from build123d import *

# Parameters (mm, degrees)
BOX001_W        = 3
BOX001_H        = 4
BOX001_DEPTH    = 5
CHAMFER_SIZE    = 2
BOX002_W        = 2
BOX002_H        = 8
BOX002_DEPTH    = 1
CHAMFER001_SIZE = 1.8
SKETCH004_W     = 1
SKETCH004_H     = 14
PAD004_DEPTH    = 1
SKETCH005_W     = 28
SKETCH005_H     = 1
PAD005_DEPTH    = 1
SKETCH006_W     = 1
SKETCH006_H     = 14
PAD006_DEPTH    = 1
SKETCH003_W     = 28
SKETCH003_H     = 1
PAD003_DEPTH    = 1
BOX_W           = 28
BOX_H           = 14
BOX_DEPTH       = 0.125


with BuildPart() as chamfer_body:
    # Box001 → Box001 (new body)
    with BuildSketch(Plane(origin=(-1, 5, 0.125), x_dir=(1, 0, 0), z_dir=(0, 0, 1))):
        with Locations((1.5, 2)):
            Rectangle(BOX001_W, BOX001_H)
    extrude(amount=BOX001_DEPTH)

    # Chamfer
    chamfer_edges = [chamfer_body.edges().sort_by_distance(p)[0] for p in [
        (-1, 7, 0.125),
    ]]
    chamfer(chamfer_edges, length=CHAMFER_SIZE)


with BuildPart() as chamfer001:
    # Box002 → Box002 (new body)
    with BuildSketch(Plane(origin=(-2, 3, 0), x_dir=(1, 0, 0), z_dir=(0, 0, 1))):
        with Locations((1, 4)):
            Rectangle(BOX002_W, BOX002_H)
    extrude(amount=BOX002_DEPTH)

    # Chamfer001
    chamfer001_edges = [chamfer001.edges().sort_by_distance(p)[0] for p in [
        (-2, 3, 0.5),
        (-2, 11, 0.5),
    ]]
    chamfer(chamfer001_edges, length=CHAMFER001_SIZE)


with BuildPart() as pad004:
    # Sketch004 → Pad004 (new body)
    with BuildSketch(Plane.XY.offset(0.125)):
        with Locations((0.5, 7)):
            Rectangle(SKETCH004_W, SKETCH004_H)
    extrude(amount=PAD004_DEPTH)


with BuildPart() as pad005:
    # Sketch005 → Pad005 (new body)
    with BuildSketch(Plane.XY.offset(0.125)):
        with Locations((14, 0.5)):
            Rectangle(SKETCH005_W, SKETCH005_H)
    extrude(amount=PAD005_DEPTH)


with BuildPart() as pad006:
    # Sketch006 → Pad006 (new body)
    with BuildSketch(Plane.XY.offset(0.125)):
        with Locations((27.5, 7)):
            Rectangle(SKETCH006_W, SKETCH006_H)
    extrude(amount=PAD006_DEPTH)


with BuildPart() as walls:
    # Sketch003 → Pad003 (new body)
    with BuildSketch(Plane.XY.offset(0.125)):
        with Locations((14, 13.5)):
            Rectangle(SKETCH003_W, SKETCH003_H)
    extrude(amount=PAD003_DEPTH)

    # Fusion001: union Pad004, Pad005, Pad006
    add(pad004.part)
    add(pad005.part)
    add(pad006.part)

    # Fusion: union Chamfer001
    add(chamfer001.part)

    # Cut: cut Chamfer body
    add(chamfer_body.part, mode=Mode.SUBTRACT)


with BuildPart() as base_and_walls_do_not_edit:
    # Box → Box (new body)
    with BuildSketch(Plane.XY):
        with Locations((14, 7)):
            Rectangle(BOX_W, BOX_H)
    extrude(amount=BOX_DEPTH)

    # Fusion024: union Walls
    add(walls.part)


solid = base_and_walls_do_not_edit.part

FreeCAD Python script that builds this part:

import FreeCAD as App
import Part
import Sketcher

V = App.Vector
Q = App.Units.Quantity


def edges_at(feature, points):
    """Names of the edges that pass closest to the given points."""
    edges = feature.Shape.Edges
    near = lambda p: min(range(len(edges)), key=lambda i: edges[i].distToShape(Part.Vertex(*p))[0])
    return sorted({f"Edge{near(p) + 1}" for p in points})


def add_polygon(sketch, points):
    """Adds a closed chain of lines whose ends are joined by coincident constraints."""
    first, n = sketch.GeometryCount, len(points)
    for a, b in zip(points, points[1:] + points[:1]):
        sketch.addGeometry(Part.LineSegment(App.Vector(*a, 0), App.Vector(*b, 0)), False)
    for i in range(n):
        sketch.addConstraint(Sketcher.Constraint("Coincident", first + i, 2, first + (i + 1) % n, 1))

doc = App.newDocument("Part")
body = doc.addObject("PartDesign::Body", "Body")

sketch1 = body.newObject("Sketcher::SketchObject", "Sketch")
sketch1.AttachmentSupport = (doc.getObject("XY_Plane"), [""])
sketch1.MapMode = "FlatFace"
sketch1.AttachmentOffset = App.Placement(V(0, 0, 0.125), App.Rotation())
add_polygon(sketch1, [(-1, 9), (-1, 5), (2, 5), (2, 9)])
sketch1.addConstraint([
    Sketcher.Constraint("Vertical", 0),
    Sketcher.Constraint("Horizontal", 1),
    Sketcher.Constraint("Vertical", 2),
    Sketcher.Constraint("Horizontal", 3),
    Sketcher.Constraint("DistanceX", 1, 1, 1, 2, Q("3 mm")),
    Sketcher.Constraint("DistanceY", 0, 2, 0, 1, Q("4 mm")),
    Sketcher.Constraint("DistanceX", 0, 2, -1, 1, Q("1 mm")),
    Sketcher.Constraint("DistanceY", -1, 1, 0, 2, Q("5 mm")),
])
pad1 = body.newObject("PartDesign::Pad", "Pad")
pad1.Profile = sketch1
pad1.Length = 5
doc.recompute()

chamfer = body.newObject("PartDesign::Chamfer", "Chamfer")
chamfer.Base = (pad1, edges_at(pad1, [(-1, 7, 0.125)]))
chamfer.Size = 2
body2 = doc.addObject("PartDesign::Body", "Body001")

sketch2 = body2.newObject("Sketcher::SketchObject", "Sketch001")
sketch2.AttachmentSupport = (doc.getObject("XY_Plane001"), [""])
sketch2.MapMode = "FlatFace"
add_polygon(sketch2, [(-2, 11), (-2, 3), (0, 3), (0, 11)])
sketch2.addConstraint([
    Sketcher.Constraint("Vertical", 0),
    Sketcher.Constraint("Horizontal", 1),
    Sketcher.Constraint("Vertical", 2),
    Sketcher.Constraint("Horizontal", 3),
    Sketcher.Constraint("PointOnObject", 1, 2, -2),
    Sketcher.Constraint("DistanceX", 1, 1, 1, 2, Q("2 mm")),
    Sketcher.Constraint("DistanceY", 0, 2, 0, 1, Q("8 mm")),
    Sketcher.Constraint("DistanceY", -1, 1, 0, 2, Q("3 mm")),
])
pad2 = body2.newObject("PartDesign::Pad", "Pad001")
pad2.Profile = sketch2
pad2.Length = 1
doc.recompute()

chamfer2 = body2.newObject("PartDesign::Chamfer", "Chamfer001")
chamfer2.Base = (pad2, edges_at(pad2, [(-2, 3, 0.5), (-2, 11, 0.5)]))
chamfer2.Size = 1.8
body3 = doc.addObject("PartDesign::Body", "Body002")

sketch3 = body3.newObject("Sketcher::SketchObject", "Sketch002")
sketch3.AttachmentSupport = (doc.getObject("XY_Plane002"), [""])
sketch3.MapMode = "FlatFace"
sketch3.AttachmentOffset = App.Placement(V(0, 0, 0.125), App.Rotation())
add_polygon(sketch3, [(0, 14), (0, 0), (1, 0), (1, 14)])
sketch3.addConstraint([
    Sketcher.Constraint("Vertical", 0),
    Sketcher.Constraint("Horizontal", 1),
    Sketcher.Constraint("Vertical", 2),
    Sketcher.Constraint("Horizontal", 3),
    Sketcher.Constraint("Coincident", 0, 2, -1, 1),
    Sketcher.Constraint("DistanceX", 1, 1, 1, 2, Q("1 mm")),
    Sketcher.Constraint("DistanceY", 0, 2, 0, 1, Q("14 mm")),
])
pad3 = body3.newObject("PartDesign::Pad", "Pad002")
pad3.Profile = sketch3
pad3.Length = 1
body4 = doc.addObject("PartDesign::Body", "Body003")

sketch4 = body4.newObject("Sketcher::SketchObject", "Sketch003")
sketch4.AttachmentSupport = (doc.getObject("XY_Plane003"), [""])
sketch4.MapMode = "FlatFace"
sketch4.AttachmentOffset = App.Placement(V(0, 0, 0.125), App.Rotation())
add_polygon(sketch4, [(0, 1), (0, 0), (28, 0), (28, 1)])
sketch4.addConstraint([
    Sketcher.Constraint("Vertical", 0),
    Sketcher.Constraint("Horizontal", 1),
    Sketcher.Constraint("Vertical", 2),
    Sketcher.Constraint("Horizontal", 3),
    Sketcher.Constraint("Coincident", 0, 2, -1, 1),
    Sketcher.Constraint("DistanceX", 1, 1, 1, 2, Q("28 mm")),
    Sketcher.Constraint("DistanceY", 0, 2, 0, 1, Q("1 mm")),
])
pad4 = body4.newObject("PartDesign::Pad", "Pad003")
pad4.Profile = sketch4
pad4.Length = 1
body5 = doc.addObject("PartDesign::Body", "Body004")

sketch5 = body5.newObject("Sketcher::SketchObject", "Sketch004")
sketch5.AttachmentSupport = (doc.getObject("XY_Plane004"), [""])
sketch5.MapMode = "FlatFace"
sketch5.AttachmentOffset = App.Placement(V(0, 0, 0.125), App.Rotation())
add_polygon(sketch5, [(27, 14), (27, 0), (28, 0), (28, 14)])
sketch5.addConstraint([
    Sketcher.Constraint("Vertical", 0),
    Sketcher.Constraint("Horizontal", 1),
    Sketcher.Constraint("Vertical", 2),
    Sketcher.Constraint("Horizontal", 3),
    Sketcher.Constraint("PointOnObject", 0, 2, -1),
    Sketcher.Constraint("DistanceX", 1, 1, 1, 2, Q("1 mm")),
    Sketcher.Constraint("DistanceY", 0, 2, 0, 1, Q("14 mm")),
    Sketcher.Constraint("DistanceX", -1, 1, 0, 2, Q("27 mm")),
])
pad5 = body5.newObject("PartDesign::Pad", "Pad004")
pad5.Profile = sketch5
pad5.Length = 1
body6 = doc.addObject("PartDesign::Body", "Body005")

sketch6 = body6.newObject("Sketcher::SketchObject", "Sketch005")
sketch6.AttachmentSupport = (doc.getObject("XY_Plane005"), [""])
sketch6.MapMode = "FlatFace"
sketch6.AttachmentOffset = App.Placement(V(0, 0, 0.125), App.Rotation())
add_polygon(sketch6, [(0, 14), (0, 13), (28, 13), (28, 14)])
sketch6.addConstraint([
    Sketcher.Constraint("Vertical", 0),
    Sketcher.Constraint("Horizontal", 1),
    Sketcher.Constraint("Vertical", 2),
    Sketcher.Constraint("Horizontal", 3),
    Sketcher.Constraint("PointOnObject", 0, 2, -2),
    Sketcher.Constraint("DistanceX", 1, 1, 1, 2, Q("28 mm")),
    Sketcher.Constraint("DistanceY", 0, 2, 0, 1, Q("1 mm")),
    Sketcher.Constraint("DistanceY", -1, 1, 0, 2, Q("13 mm")),
])
pad6 = body6.newObject("PartDesign::Pad", "Pad005")
pad6.Profile = sketch6
pad6.Length = 1
doc.recompute()

boolean = body6.newObject("PartDesign::Boolean", "Boolean")
boolean.Type = "Fuse"
boolean.addObjects([body3])
doc.recompute()

boolean2 = body6.newObject("PartDesign::Boolean", "Boolean001")
boolean2.Type = "Fuse"
boolean2.addObjects([body4])
doc.recompute()

boolean3 = body6.newObject("PartDesign::Boolean", "Boolean002")
boolean3.Type = "Fuse"
boolean3.addObjects([body5])
doc.recompute()

boolean4 = body6.newObject("PartDesign::Boolean", "Boolean003")
boolean4.Type = "Fuse"
boolean4.addObjects([body2])
doc.recompute()

boolean5 = body6.newObject("PartDesign::Boolean", "Boolean004")
boolean5.Type = "Cut"
boolean5.addObjects([body])
body7 = doc.addObject("PartDesign::Body", "Body006")

sketch7 = body7.newObject("Sketcher::SketchObject", "Sketch006")
sketch7.AttachmentSupport = (doc.getObject("XY_Plane006"), [""])
sketch7.MapMode = "FlatFace"
add_polygon(sketch7, [(0, 14), (0, 0), (28, 0), (28, 14)])
sketch7.addConstraint([
    Sketcher.Constraint("Vertical", 0),
    Sketcher.Constraint("Horizontal", 1),
    Sketcher.Constraint("Vertical", 2),
    Sketcher.Constraint("Horizontal", 3),
    Sketcher.Constraint("Coincident", 0, 2, -1, 1),
    Sketcher.Constraint("DistanceX", 1, 1, 1, 2, Q("28 mm")),
    Sketcher.Constraint("DistanceY", 0, 2, 0, 1, Q("14 mm")),
])
pad7 = body7.newObject("PartDesign::Pad", "Pad006")
pad7.Profile = sketch7
pad7.Length = 0.125
doc.recompute()

boolean6 = body7.newObject("PartDesign::Boolean", "Boolean005")
boolean6.Type = "Fuse"
boolean6.addObjects([body6])

doc.recompute()
